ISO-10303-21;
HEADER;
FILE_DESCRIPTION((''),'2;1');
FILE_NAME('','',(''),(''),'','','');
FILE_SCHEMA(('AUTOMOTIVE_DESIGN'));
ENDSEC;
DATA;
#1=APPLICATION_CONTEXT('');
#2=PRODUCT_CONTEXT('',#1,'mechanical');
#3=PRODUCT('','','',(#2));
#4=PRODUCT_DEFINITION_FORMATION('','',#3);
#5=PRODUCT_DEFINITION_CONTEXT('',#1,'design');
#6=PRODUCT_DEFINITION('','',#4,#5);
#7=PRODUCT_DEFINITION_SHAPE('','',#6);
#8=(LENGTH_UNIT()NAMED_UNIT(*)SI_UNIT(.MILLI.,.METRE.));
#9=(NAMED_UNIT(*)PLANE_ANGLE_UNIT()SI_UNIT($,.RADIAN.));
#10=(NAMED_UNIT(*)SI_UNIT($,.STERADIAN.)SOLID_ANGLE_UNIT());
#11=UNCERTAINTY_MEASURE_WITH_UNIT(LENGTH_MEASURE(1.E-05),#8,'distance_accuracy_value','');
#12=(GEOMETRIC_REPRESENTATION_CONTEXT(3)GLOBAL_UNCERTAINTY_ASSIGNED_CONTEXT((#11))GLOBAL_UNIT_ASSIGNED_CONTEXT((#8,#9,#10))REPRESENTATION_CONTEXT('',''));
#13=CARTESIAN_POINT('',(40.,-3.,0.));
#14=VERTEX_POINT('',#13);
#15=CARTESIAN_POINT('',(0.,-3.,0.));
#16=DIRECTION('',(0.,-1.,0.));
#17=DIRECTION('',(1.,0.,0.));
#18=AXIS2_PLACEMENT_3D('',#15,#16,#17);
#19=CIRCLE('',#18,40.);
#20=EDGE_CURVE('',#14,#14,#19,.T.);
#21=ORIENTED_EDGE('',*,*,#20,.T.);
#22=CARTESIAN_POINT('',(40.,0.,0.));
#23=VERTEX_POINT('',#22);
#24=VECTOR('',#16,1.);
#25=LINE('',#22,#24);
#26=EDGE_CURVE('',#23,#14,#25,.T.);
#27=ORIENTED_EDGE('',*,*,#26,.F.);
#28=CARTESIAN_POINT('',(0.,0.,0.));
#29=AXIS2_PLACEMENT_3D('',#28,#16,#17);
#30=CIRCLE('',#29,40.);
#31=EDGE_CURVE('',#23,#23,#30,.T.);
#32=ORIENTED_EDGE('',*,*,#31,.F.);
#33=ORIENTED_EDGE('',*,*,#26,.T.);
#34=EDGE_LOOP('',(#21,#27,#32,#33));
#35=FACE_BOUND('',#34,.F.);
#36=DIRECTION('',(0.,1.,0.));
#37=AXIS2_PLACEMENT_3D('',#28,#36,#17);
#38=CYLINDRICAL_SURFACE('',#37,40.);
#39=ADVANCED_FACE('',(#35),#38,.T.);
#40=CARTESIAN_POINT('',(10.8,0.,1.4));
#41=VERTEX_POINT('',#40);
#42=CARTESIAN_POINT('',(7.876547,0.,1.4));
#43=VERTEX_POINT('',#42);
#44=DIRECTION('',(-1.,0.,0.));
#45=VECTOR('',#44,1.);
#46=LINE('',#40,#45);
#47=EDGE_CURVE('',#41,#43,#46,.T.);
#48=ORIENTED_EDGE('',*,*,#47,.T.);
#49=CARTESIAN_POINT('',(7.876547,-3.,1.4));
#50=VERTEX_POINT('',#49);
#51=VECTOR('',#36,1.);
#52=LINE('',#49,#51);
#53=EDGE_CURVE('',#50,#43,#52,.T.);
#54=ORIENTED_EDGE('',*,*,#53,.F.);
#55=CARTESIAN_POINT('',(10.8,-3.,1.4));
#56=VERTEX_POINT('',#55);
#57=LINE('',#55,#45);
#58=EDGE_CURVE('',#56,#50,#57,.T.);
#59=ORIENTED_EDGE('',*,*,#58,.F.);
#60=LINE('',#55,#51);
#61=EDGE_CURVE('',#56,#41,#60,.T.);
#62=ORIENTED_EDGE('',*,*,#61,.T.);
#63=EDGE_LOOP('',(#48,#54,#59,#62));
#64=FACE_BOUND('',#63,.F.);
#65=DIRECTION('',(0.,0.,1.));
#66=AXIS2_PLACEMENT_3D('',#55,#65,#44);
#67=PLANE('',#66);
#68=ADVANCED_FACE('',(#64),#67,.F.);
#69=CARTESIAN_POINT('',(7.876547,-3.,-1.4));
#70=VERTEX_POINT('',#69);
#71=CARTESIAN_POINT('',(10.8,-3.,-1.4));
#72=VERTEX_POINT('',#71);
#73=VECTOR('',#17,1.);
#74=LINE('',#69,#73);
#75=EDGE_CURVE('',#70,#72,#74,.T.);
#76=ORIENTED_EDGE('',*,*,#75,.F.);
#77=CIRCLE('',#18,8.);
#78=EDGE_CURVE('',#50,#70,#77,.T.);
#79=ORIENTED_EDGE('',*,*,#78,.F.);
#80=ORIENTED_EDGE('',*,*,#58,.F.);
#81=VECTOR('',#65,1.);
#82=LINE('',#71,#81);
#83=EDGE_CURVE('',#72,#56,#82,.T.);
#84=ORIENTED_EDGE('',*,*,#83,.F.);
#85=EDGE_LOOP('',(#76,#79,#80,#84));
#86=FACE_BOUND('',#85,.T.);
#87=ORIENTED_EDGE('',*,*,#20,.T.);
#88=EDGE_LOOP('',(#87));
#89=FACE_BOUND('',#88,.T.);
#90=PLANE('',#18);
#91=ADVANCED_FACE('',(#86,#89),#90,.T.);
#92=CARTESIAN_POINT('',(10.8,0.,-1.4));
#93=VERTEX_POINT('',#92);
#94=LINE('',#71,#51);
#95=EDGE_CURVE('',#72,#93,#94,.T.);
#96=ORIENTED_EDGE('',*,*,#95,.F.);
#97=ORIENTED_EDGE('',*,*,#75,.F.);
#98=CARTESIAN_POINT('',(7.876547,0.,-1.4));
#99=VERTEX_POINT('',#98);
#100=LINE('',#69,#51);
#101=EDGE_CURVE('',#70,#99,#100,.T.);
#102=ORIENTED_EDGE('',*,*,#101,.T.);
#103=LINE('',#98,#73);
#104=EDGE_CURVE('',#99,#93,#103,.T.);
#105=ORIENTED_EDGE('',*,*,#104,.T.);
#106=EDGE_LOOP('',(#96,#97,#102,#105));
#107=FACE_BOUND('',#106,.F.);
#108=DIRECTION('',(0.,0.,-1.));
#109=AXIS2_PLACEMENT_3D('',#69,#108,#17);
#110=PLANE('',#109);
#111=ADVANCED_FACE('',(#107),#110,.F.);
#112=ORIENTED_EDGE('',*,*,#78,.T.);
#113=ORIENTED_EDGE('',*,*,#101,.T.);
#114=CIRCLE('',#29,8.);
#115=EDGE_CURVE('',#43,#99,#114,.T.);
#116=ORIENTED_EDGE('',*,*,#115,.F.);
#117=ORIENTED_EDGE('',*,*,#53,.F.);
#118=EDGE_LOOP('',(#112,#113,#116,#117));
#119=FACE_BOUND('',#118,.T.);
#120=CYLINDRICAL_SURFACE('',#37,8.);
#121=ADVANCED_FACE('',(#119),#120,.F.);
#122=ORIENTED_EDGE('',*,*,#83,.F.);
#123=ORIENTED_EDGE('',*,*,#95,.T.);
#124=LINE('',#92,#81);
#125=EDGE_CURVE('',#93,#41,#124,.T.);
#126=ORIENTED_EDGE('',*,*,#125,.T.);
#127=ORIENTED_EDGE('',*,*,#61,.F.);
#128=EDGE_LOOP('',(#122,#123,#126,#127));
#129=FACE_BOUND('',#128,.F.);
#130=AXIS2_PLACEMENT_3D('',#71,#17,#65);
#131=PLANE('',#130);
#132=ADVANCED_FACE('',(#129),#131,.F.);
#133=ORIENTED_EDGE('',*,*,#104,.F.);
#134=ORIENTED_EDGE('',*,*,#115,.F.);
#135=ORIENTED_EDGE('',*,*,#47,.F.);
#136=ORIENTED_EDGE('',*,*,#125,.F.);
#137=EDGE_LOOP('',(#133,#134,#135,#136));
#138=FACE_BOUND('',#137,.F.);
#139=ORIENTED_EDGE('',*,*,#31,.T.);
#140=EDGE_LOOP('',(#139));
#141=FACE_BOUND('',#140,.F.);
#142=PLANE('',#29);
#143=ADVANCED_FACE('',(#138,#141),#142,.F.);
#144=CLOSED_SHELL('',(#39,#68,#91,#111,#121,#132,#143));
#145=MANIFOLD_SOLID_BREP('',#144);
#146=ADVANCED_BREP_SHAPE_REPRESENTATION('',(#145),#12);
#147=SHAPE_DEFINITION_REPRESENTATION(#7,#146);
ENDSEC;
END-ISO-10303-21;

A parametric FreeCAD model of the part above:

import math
import FreeCAD as App
import Part
import Sketcher
from FreeCAD import Vector

doc = App.newDocument("Part")
body = doc.addObject("PartDesign::Body", "Body")

# Sketch on XZ plane
sketch1 = doc.addObject("Sketcher::SketchObject", "Sketch")
body.addObject(sketch1)
sketch1.AttachmentSupport = (doc.XZ_Plane, [""])
sketch1.MapMode = "FlatFace"
sketch1.addGeometry(Part.Circle(Vector(0, 0, 0), Vector(0, 0, 1), 40), False)
sketch1.addGeometry(Part.Circle(Vector(0, 0, 0), Vector(0, 0, 1), 8), False)
sketch1.addConstraint(Sketcher.Constraint("Coincident", 0, 3, -1, 1))
sketch1.addConstraint(Sketcher.Constraint("Coincident", 1, 3, -1, 1))
sketch1.addConstraint(Sketcher.Constraint("Diameter", 0, 80.0))
sketch1.addConstraint(Sketcher.Constraint("Diameter", 1, 16.0))
pad1 = doc.addObject("PartDesign::Pad", "Pad")
body.addObject(pad1)
pad1.Profile = sketch1
pad1.Length = 3

# Sketch on XZ plane
sketch2 = doc.addObject("Sketcher::SketchObject", "Sketch001")
body.addObject(sketch2)
sketch2.AttachmentSupport = (doc.XZ_Plane, [""])
sketch2.MapMode = "FlatFace"
sketch2.AttachmentOffset = App.Placement(Vector(0, 0, 3), App.Rotation())
sketch2.addGeometry(Part.LineSegment(Vector(10.8, -1.4, 0), Vector(10.8, 1.4, 0)), False)
sketch2.addGeometry(Part.LineSegment(Vector(10.8, 1.4, 0), Vector(7.9, 1.4, 0)), False)
sketch2.addGeometry(Part.ArcOfCircle(Part.Circle(Vector(0, 0, 0), Vector(0, 0, 1), 8), math.radians(0), math.radians(10.08)), False)
sketch2.addGeometry(Part.ArcOfCircle(Part.Circle(Vector(0, 0, 0), Vector(0, 0, 1), 8), math.radians(-10.08), math.radians(0)), False)
sketch2.addGeometry(Part.LineSegment(Vector(7.9, -1.4, 0), Vector(10.8, -1.4, 0)), False)
sketch2.addConstraint(Sketcher.Constraint("Coincident", 0, 2, 1, 1))
sketch2.addConstraint(Sketcher.Constraint("Coincident", 1, 2, 2, 2))
sketch2.addConstraint(Sketcher.Constraint("Tangent", 2, 1, 3, 2))
sketch2.addConstraint(Sketcher.Constraint("Coincident", 3, 1, 4, 1))
sketch2.addConstraint(Sketcher.Constraint("Coincident", 4, 2, 0, 1))
sketch2.addConstraint(Sketcher.Constraint("Vertical", 0))
sketch2.addConstraint(Sketcher.Constraint("Horizontal", 1))
sketch2.addConstraint(Sketcher.Constraint("Horizontal", 4))
sketch2.addConstraint(Sketcher.Constraint("Equal", 2, 3))
sketch2.addConstraint(Sketcher.Constraint("Symmetric", 1, 2, 3, 1, -1))
sketch2.addConstraint(Sketcher.Constraint("PointOnObject", 2, 1, -1))
sketch2.addConstraint(Sketcher.Constraint("DistanceY", 0, 1, 0, 2, 2.8))
sketch2.addConstraint(Sketcher.Constraint("DistanceX", -1, 1, 2, 1, 8.0))
sketch2.addConstraint(Sketcher.Constraint("DistanceX", -1, 1, 0, 2, 10.8))
sketch2.addConstraint(Sketcher.Constraint("Radius", 2, 7.999973))
pocket1 = doc.addObject("PartDesign::Pocket", "Pocket")
body.addObject(pocket1)
pocket1.Profile = sketch2
pocket1.Type = "ThroughAll"

doc.recompute()
